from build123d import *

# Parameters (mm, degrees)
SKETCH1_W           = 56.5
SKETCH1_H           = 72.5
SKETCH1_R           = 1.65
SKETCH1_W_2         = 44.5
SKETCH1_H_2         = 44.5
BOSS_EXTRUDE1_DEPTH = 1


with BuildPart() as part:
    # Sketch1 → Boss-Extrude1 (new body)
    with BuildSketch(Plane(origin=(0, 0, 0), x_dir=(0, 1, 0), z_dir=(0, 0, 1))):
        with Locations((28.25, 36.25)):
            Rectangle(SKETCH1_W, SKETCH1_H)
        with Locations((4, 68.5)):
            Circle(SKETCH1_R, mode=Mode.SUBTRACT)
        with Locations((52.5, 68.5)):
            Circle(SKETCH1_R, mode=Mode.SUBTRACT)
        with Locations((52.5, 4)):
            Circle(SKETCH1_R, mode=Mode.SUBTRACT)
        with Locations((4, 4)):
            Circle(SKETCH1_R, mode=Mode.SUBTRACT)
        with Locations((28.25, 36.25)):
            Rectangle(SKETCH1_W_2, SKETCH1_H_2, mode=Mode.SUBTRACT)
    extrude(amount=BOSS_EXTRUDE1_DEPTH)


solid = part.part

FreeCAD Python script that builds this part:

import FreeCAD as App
import Part
import Sketcher
from FreeCAD import Vector
Q = App.Units.Quantity


def add_polygon(sketch, points):
    """Adds a closed chain of lines whose ends are joined by coincident constraints."""
    first, n = sketch.GeometryCount, len(points)
    for a, b in zip(points, points[1:] + points[:1]):
        sketch.addGeometry(Part.LineSegment(App.Vector(*a, 0), App.Vector(*b, 0)), False)
    for i in range(n):
        sketch.addConstraint(Sketcher.Constraint("Coincident", first + i, 2, first + (i + 1) % n, 1))

doc = App.newDocument("Part")
body = doc.addObject("PartDesign::Body", "Body")

sketch1 = doc.addObject("Sketcher::SketchObject", "Sketch")
body.addObject(sketch1)
sketch1.AttachmentSupport = (doc.XY_Plane, [""])
sketch1.MapMode = "FlatFace"
add_polygon(sketch1, [(-72.5, 0), (0, 0), (0, 56.5), (-72.5, 56.5)])
sketch1.addGeometry(Part.Circle(Vector(-4, 4, 0), Vector(0, 0, 1), 1.6), False)
add_polygon(sketch1, [(-14, 50.5), (-14, 6), (-58.5, 6), (-58.5, 50.5)])
sketch1.addGeometry(Part.Circle(Vector(-4, 52.5, 0), Vector(0, 0, 1), 1.6), False)
sketch1.addGeometry(Part.Circle(Vector(-68.5, 4, 0), Vector(0, 0, 1), 1.6), False)
sketch1.addGeometry(Part.Circle(Vector(-68.5, 52.5, 0), Vector(0, 0, 1), 1.6), False)
sketch1.addConstraint([
    Sketcher.Constraint("Horizontal", 0),
    Sketcher.Constraint("Vertical", 1),
    Sketcher.Constraint("Horizontal", 2),
    Sketcher.Constraint("Vertical", 3),
    Sketcher.Constraint("Vertical", 5),
    Sketcher.Constraint("Horizontal", 6),
    Sketcher.Constraint("Vertical", 7),
    Sketcher.Constraint("Horizontal", 8),
    Sketcher.Constraint("Coincident", 0, 2, -1, 1),
    Sketcher.Constraint("Equal", 4, 9),
    Sketcher.Constraint("Equal", 9, 10),
    Sketcher.Constraint("Equal", 10, 11),
    Sketcher.Constraint("Horizontal", 4, 3, 10, 3),
    Sketcher.Constraint("Horizontal", 9, 3, 11, 3),
    Sketcher.Constraint("Vertical", 4, 3, 9, 3),
    Sketcher.Constraint("Vertical", 10, 3, 11, 3),
    Sketcher.Constraint("Equal", 8, 5),
    Sketcher.Constraint("Diameter", 4, Q("3.3 mm")),
    Sketcher.Constraint("DistanceX", 0, 1, 0, 2, Q("72.5 mm")),
    Sketcher.Constraint("DistanceX", 6, 2, 6, 1, Q("44.5 mm")),
    Sketcher.Constraint("DistanceY", 1, 1, 1, 2, Q("56.5 mm")),
    Sketcher.Constraint("DistanceX", 4, 3, -1, 1, Q("4 mm")),
    Sketcher.Constraint("DistanceY", -1, 1, 4, 3, Q("4 mm")),
    Sketcher.Constraint("DistanceX", 5, 2, -1, 1, Q("14 mm")),
    Sketcher.Constraint("DistanceY", -1, 1, 5, 2, Q("6 mm")),
    Sketcher.Constraint("DistanceY", 9, 3, 1, 2, Q("4 mm")),
    Sketcher.Constraint("DistanceX", 2, 2, 11, 3, Q("4 mm")),
])
pad1 = doc.addObject("PartDesign::Pad", "Pad")
body.addObject(pad1)
pad1.Profile = sketch1
pad1.Length = 1

doc.recompute()
